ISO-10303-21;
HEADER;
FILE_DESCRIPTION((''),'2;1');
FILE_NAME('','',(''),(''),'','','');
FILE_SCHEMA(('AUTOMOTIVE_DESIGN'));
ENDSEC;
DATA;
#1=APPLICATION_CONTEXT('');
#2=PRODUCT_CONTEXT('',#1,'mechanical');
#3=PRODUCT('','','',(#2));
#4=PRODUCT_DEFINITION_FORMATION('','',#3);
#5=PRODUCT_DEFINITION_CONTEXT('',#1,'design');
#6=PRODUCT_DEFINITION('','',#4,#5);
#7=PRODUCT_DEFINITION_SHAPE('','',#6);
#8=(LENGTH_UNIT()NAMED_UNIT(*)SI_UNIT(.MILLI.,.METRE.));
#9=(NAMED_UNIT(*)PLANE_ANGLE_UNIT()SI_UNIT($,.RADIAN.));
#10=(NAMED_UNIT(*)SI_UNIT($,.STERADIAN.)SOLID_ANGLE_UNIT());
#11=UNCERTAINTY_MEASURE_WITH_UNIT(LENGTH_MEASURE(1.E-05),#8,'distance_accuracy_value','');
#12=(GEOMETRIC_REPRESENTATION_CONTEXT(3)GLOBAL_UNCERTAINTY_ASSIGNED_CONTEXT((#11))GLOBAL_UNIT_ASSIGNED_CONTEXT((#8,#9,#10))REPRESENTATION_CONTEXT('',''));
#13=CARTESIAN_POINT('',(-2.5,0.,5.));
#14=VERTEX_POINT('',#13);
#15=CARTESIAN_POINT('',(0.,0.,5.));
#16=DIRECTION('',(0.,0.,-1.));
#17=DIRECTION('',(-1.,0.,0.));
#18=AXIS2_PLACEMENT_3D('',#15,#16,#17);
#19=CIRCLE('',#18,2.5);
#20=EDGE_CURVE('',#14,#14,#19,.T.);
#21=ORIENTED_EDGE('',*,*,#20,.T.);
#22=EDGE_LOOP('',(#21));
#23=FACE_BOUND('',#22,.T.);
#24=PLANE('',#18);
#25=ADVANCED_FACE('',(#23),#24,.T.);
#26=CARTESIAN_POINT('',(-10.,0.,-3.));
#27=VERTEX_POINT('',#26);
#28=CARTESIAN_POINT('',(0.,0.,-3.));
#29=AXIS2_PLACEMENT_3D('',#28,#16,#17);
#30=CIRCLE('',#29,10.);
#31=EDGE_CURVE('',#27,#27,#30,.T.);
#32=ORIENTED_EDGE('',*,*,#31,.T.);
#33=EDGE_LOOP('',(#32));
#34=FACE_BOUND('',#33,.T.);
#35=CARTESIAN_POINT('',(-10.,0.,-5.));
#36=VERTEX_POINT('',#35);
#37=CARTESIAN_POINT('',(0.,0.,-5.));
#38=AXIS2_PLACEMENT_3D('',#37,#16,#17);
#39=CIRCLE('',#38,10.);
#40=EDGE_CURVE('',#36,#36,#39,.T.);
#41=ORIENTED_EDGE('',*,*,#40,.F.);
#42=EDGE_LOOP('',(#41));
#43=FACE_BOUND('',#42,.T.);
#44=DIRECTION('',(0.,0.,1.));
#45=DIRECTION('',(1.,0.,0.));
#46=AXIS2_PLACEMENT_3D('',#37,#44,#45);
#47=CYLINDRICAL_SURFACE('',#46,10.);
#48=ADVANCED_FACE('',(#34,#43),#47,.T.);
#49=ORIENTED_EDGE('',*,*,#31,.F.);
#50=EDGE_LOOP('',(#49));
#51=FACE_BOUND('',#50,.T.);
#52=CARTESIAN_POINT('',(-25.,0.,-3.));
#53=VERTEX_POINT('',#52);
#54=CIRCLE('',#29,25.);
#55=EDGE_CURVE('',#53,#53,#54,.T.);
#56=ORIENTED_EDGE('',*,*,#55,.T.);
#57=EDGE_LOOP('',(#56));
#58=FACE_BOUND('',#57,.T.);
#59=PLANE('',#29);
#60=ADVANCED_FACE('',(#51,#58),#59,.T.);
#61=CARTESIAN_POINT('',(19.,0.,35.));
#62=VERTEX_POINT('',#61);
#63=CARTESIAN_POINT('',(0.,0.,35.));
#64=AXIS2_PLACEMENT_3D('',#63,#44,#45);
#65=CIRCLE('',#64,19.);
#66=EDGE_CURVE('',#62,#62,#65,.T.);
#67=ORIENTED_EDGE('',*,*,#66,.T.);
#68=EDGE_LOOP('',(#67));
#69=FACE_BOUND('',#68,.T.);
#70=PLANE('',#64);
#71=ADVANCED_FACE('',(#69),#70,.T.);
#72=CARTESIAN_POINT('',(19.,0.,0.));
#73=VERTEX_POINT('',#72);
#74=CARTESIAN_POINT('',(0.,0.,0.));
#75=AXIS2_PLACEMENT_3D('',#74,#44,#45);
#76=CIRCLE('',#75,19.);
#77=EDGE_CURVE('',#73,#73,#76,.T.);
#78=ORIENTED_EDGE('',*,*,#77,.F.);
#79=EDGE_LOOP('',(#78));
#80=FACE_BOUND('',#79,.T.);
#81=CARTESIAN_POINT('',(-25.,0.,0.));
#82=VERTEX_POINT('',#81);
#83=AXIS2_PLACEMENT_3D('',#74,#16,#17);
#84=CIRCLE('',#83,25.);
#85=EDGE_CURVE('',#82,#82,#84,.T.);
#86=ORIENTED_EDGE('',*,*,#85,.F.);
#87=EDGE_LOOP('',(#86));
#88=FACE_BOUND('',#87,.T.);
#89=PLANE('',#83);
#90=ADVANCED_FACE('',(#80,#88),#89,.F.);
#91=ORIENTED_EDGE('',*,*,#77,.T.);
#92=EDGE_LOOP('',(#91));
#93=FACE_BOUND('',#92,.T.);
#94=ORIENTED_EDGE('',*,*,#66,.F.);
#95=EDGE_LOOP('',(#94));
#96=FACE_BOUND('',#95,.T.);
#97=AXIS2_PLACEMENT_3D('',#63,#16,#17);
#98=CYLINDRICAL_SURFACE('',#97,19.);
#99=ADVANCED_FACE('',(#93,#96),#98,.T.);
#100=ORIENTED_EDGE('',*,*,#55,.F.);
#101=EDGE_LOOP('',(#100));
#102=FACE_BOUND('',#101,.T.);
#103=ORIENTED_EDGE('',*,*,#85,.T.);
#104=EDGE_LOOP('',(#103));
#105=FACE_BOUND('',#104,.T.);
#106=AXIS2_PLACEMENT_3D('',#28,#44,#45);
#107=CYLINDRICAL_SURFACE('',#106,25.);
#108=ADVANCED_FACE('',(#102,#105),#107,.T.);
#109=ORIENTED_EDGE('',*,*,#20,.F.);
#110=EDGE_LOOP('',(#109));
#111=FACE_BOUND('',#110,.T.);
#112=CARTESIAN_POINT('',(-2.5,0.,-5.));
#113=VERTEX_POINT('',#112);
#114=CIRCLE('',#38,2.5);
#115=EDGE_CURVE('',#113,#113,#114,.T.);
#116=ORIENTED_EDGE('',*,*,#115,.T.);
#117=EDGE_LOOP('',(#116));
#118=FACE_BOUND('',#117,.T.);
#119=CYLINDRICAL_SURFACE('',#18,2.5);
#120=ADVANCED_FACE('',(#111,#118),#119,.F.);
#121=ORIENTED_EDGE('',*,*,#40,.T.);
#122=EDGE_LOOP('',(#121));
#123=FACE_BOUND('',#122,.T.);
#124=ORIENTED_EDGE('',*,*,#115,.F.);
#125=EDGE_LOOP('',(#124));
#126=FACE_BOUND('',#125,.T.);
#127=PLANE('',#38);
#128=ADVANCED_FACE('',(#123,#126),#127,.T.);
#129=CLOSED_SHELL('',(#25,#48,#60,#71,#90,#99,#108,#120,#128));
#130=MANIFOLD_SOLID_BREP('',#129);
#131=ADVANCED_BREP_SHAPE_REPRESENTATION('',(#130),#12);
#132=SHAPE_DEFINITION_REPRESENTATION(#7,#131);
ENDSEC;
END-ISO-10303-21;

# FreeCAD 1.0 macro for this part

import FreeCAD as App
import Part
import Sketcher
from FreeCAD import Vector
Q = App.Units.Quantity

doc = App.newDocument("Part")
body = doc.addObject("PartDesign::Body", "Body")

# Sketch on XY plane
sketch1 = body.newObject("Sketcher::SketchObject", "Sketch")
sketch1.AttachmentSupport = (doc.getObject("XY_Plane"), [""])
sketch1.MapMode = "FlatFace"
sketch1.addGeometry(Part.Circle(Vector(0, 0, 0), Vector(0, 0, 1), 19), False)
sketch1.addConstraint([
    Sketcher.Constraint("Coincident", 0, 3, -1, 1),
    Sketcher.Constraint("Diameter", 0, Q("38 mm")),
])
pad1 = body.newObject("PartDesign::Pad", "Pad")
pad1.Profile = sketch1
pad1.Length = 35

# Sketch on XY plane
sketch2 = body.newObject("Sketcher::SketchObject", "Sketch001")
sketch2.AttachmentSupport = (doc.getObject("XY_Plane"), [""])
sketch2.MapMode = "FlatFace"
sketch2.addGeometry(Part.Circle(Vector(0, 0, 0), Vector(0, 0, 1), 25), False)
sketch2.addConstraint([
    Sketcher.Constraint("Coincident", 0, 3, -1, 1),
    Sketcher.Constraint("Diameter", 0, Q("50 mm")),
])
pad2 = body.newObject("PartDesign::Pad", "Pad001")
pad2.Profile = sketch2
pad2.Length = 3
pad2.Reversed = True

# Sketch on XY plane
sketch3 = body.newObject("Sketcher::SketchObject", "Sketch002")
sketch3.AttachmentSupport = (doc.getObject("XY_Plane"), [""])
sketch3.MapMode = "FlatFace"
sketch3.AttachmentOffset = App.Placement(Vector(0, 0, -3), App.Rotation())
sketch3.addGeometry(Part.Circle(Vector(0, 0, 0), Vector(0, 0, 1), 10), False)
sketch3.addConstraint([
    Sketcher.Constraint("Coincident", 0, 3, -1, 1),
    Sketcher.Constraint("Diameter", 0, Q("20 mm")),
])
pad3 = body.newObject("PartDesign::Pad", "Pad002")
pad3.Profile = sketch3
pad3.Length = 2
pad3.Reversed = True

# Sketch on XY plane
sketch4 = body.newObject("Sketcher::SketchObject", "Sketch003")
sketch4.AttachmentSupport = (doc.getObject("XY_Plane"), [""])
sketch4.MapMode = "FlatFace"
sketch4.AttachmentOffset = App.Placement(Vector(0, 0, -5), App.Rotation())
sketch4.addGeometry(Part.Circle(Vector(0, 0, 0), Vector(0, 0, 1), 2.5), False)
sketch4.addConstraint([
    Sketcher.Constraint("Coincident", 0, 3, -1, 1),
    Sketcher.Constraint("Diameter", 0, Q("5 mm")),
])
pocket1 = body.newObject("PartDesign::Pocket", "Pocket")
pocket1.Profile = sketch4
pocket1.Length = 10
pocket1.Reversed = True

doc.recompute()
